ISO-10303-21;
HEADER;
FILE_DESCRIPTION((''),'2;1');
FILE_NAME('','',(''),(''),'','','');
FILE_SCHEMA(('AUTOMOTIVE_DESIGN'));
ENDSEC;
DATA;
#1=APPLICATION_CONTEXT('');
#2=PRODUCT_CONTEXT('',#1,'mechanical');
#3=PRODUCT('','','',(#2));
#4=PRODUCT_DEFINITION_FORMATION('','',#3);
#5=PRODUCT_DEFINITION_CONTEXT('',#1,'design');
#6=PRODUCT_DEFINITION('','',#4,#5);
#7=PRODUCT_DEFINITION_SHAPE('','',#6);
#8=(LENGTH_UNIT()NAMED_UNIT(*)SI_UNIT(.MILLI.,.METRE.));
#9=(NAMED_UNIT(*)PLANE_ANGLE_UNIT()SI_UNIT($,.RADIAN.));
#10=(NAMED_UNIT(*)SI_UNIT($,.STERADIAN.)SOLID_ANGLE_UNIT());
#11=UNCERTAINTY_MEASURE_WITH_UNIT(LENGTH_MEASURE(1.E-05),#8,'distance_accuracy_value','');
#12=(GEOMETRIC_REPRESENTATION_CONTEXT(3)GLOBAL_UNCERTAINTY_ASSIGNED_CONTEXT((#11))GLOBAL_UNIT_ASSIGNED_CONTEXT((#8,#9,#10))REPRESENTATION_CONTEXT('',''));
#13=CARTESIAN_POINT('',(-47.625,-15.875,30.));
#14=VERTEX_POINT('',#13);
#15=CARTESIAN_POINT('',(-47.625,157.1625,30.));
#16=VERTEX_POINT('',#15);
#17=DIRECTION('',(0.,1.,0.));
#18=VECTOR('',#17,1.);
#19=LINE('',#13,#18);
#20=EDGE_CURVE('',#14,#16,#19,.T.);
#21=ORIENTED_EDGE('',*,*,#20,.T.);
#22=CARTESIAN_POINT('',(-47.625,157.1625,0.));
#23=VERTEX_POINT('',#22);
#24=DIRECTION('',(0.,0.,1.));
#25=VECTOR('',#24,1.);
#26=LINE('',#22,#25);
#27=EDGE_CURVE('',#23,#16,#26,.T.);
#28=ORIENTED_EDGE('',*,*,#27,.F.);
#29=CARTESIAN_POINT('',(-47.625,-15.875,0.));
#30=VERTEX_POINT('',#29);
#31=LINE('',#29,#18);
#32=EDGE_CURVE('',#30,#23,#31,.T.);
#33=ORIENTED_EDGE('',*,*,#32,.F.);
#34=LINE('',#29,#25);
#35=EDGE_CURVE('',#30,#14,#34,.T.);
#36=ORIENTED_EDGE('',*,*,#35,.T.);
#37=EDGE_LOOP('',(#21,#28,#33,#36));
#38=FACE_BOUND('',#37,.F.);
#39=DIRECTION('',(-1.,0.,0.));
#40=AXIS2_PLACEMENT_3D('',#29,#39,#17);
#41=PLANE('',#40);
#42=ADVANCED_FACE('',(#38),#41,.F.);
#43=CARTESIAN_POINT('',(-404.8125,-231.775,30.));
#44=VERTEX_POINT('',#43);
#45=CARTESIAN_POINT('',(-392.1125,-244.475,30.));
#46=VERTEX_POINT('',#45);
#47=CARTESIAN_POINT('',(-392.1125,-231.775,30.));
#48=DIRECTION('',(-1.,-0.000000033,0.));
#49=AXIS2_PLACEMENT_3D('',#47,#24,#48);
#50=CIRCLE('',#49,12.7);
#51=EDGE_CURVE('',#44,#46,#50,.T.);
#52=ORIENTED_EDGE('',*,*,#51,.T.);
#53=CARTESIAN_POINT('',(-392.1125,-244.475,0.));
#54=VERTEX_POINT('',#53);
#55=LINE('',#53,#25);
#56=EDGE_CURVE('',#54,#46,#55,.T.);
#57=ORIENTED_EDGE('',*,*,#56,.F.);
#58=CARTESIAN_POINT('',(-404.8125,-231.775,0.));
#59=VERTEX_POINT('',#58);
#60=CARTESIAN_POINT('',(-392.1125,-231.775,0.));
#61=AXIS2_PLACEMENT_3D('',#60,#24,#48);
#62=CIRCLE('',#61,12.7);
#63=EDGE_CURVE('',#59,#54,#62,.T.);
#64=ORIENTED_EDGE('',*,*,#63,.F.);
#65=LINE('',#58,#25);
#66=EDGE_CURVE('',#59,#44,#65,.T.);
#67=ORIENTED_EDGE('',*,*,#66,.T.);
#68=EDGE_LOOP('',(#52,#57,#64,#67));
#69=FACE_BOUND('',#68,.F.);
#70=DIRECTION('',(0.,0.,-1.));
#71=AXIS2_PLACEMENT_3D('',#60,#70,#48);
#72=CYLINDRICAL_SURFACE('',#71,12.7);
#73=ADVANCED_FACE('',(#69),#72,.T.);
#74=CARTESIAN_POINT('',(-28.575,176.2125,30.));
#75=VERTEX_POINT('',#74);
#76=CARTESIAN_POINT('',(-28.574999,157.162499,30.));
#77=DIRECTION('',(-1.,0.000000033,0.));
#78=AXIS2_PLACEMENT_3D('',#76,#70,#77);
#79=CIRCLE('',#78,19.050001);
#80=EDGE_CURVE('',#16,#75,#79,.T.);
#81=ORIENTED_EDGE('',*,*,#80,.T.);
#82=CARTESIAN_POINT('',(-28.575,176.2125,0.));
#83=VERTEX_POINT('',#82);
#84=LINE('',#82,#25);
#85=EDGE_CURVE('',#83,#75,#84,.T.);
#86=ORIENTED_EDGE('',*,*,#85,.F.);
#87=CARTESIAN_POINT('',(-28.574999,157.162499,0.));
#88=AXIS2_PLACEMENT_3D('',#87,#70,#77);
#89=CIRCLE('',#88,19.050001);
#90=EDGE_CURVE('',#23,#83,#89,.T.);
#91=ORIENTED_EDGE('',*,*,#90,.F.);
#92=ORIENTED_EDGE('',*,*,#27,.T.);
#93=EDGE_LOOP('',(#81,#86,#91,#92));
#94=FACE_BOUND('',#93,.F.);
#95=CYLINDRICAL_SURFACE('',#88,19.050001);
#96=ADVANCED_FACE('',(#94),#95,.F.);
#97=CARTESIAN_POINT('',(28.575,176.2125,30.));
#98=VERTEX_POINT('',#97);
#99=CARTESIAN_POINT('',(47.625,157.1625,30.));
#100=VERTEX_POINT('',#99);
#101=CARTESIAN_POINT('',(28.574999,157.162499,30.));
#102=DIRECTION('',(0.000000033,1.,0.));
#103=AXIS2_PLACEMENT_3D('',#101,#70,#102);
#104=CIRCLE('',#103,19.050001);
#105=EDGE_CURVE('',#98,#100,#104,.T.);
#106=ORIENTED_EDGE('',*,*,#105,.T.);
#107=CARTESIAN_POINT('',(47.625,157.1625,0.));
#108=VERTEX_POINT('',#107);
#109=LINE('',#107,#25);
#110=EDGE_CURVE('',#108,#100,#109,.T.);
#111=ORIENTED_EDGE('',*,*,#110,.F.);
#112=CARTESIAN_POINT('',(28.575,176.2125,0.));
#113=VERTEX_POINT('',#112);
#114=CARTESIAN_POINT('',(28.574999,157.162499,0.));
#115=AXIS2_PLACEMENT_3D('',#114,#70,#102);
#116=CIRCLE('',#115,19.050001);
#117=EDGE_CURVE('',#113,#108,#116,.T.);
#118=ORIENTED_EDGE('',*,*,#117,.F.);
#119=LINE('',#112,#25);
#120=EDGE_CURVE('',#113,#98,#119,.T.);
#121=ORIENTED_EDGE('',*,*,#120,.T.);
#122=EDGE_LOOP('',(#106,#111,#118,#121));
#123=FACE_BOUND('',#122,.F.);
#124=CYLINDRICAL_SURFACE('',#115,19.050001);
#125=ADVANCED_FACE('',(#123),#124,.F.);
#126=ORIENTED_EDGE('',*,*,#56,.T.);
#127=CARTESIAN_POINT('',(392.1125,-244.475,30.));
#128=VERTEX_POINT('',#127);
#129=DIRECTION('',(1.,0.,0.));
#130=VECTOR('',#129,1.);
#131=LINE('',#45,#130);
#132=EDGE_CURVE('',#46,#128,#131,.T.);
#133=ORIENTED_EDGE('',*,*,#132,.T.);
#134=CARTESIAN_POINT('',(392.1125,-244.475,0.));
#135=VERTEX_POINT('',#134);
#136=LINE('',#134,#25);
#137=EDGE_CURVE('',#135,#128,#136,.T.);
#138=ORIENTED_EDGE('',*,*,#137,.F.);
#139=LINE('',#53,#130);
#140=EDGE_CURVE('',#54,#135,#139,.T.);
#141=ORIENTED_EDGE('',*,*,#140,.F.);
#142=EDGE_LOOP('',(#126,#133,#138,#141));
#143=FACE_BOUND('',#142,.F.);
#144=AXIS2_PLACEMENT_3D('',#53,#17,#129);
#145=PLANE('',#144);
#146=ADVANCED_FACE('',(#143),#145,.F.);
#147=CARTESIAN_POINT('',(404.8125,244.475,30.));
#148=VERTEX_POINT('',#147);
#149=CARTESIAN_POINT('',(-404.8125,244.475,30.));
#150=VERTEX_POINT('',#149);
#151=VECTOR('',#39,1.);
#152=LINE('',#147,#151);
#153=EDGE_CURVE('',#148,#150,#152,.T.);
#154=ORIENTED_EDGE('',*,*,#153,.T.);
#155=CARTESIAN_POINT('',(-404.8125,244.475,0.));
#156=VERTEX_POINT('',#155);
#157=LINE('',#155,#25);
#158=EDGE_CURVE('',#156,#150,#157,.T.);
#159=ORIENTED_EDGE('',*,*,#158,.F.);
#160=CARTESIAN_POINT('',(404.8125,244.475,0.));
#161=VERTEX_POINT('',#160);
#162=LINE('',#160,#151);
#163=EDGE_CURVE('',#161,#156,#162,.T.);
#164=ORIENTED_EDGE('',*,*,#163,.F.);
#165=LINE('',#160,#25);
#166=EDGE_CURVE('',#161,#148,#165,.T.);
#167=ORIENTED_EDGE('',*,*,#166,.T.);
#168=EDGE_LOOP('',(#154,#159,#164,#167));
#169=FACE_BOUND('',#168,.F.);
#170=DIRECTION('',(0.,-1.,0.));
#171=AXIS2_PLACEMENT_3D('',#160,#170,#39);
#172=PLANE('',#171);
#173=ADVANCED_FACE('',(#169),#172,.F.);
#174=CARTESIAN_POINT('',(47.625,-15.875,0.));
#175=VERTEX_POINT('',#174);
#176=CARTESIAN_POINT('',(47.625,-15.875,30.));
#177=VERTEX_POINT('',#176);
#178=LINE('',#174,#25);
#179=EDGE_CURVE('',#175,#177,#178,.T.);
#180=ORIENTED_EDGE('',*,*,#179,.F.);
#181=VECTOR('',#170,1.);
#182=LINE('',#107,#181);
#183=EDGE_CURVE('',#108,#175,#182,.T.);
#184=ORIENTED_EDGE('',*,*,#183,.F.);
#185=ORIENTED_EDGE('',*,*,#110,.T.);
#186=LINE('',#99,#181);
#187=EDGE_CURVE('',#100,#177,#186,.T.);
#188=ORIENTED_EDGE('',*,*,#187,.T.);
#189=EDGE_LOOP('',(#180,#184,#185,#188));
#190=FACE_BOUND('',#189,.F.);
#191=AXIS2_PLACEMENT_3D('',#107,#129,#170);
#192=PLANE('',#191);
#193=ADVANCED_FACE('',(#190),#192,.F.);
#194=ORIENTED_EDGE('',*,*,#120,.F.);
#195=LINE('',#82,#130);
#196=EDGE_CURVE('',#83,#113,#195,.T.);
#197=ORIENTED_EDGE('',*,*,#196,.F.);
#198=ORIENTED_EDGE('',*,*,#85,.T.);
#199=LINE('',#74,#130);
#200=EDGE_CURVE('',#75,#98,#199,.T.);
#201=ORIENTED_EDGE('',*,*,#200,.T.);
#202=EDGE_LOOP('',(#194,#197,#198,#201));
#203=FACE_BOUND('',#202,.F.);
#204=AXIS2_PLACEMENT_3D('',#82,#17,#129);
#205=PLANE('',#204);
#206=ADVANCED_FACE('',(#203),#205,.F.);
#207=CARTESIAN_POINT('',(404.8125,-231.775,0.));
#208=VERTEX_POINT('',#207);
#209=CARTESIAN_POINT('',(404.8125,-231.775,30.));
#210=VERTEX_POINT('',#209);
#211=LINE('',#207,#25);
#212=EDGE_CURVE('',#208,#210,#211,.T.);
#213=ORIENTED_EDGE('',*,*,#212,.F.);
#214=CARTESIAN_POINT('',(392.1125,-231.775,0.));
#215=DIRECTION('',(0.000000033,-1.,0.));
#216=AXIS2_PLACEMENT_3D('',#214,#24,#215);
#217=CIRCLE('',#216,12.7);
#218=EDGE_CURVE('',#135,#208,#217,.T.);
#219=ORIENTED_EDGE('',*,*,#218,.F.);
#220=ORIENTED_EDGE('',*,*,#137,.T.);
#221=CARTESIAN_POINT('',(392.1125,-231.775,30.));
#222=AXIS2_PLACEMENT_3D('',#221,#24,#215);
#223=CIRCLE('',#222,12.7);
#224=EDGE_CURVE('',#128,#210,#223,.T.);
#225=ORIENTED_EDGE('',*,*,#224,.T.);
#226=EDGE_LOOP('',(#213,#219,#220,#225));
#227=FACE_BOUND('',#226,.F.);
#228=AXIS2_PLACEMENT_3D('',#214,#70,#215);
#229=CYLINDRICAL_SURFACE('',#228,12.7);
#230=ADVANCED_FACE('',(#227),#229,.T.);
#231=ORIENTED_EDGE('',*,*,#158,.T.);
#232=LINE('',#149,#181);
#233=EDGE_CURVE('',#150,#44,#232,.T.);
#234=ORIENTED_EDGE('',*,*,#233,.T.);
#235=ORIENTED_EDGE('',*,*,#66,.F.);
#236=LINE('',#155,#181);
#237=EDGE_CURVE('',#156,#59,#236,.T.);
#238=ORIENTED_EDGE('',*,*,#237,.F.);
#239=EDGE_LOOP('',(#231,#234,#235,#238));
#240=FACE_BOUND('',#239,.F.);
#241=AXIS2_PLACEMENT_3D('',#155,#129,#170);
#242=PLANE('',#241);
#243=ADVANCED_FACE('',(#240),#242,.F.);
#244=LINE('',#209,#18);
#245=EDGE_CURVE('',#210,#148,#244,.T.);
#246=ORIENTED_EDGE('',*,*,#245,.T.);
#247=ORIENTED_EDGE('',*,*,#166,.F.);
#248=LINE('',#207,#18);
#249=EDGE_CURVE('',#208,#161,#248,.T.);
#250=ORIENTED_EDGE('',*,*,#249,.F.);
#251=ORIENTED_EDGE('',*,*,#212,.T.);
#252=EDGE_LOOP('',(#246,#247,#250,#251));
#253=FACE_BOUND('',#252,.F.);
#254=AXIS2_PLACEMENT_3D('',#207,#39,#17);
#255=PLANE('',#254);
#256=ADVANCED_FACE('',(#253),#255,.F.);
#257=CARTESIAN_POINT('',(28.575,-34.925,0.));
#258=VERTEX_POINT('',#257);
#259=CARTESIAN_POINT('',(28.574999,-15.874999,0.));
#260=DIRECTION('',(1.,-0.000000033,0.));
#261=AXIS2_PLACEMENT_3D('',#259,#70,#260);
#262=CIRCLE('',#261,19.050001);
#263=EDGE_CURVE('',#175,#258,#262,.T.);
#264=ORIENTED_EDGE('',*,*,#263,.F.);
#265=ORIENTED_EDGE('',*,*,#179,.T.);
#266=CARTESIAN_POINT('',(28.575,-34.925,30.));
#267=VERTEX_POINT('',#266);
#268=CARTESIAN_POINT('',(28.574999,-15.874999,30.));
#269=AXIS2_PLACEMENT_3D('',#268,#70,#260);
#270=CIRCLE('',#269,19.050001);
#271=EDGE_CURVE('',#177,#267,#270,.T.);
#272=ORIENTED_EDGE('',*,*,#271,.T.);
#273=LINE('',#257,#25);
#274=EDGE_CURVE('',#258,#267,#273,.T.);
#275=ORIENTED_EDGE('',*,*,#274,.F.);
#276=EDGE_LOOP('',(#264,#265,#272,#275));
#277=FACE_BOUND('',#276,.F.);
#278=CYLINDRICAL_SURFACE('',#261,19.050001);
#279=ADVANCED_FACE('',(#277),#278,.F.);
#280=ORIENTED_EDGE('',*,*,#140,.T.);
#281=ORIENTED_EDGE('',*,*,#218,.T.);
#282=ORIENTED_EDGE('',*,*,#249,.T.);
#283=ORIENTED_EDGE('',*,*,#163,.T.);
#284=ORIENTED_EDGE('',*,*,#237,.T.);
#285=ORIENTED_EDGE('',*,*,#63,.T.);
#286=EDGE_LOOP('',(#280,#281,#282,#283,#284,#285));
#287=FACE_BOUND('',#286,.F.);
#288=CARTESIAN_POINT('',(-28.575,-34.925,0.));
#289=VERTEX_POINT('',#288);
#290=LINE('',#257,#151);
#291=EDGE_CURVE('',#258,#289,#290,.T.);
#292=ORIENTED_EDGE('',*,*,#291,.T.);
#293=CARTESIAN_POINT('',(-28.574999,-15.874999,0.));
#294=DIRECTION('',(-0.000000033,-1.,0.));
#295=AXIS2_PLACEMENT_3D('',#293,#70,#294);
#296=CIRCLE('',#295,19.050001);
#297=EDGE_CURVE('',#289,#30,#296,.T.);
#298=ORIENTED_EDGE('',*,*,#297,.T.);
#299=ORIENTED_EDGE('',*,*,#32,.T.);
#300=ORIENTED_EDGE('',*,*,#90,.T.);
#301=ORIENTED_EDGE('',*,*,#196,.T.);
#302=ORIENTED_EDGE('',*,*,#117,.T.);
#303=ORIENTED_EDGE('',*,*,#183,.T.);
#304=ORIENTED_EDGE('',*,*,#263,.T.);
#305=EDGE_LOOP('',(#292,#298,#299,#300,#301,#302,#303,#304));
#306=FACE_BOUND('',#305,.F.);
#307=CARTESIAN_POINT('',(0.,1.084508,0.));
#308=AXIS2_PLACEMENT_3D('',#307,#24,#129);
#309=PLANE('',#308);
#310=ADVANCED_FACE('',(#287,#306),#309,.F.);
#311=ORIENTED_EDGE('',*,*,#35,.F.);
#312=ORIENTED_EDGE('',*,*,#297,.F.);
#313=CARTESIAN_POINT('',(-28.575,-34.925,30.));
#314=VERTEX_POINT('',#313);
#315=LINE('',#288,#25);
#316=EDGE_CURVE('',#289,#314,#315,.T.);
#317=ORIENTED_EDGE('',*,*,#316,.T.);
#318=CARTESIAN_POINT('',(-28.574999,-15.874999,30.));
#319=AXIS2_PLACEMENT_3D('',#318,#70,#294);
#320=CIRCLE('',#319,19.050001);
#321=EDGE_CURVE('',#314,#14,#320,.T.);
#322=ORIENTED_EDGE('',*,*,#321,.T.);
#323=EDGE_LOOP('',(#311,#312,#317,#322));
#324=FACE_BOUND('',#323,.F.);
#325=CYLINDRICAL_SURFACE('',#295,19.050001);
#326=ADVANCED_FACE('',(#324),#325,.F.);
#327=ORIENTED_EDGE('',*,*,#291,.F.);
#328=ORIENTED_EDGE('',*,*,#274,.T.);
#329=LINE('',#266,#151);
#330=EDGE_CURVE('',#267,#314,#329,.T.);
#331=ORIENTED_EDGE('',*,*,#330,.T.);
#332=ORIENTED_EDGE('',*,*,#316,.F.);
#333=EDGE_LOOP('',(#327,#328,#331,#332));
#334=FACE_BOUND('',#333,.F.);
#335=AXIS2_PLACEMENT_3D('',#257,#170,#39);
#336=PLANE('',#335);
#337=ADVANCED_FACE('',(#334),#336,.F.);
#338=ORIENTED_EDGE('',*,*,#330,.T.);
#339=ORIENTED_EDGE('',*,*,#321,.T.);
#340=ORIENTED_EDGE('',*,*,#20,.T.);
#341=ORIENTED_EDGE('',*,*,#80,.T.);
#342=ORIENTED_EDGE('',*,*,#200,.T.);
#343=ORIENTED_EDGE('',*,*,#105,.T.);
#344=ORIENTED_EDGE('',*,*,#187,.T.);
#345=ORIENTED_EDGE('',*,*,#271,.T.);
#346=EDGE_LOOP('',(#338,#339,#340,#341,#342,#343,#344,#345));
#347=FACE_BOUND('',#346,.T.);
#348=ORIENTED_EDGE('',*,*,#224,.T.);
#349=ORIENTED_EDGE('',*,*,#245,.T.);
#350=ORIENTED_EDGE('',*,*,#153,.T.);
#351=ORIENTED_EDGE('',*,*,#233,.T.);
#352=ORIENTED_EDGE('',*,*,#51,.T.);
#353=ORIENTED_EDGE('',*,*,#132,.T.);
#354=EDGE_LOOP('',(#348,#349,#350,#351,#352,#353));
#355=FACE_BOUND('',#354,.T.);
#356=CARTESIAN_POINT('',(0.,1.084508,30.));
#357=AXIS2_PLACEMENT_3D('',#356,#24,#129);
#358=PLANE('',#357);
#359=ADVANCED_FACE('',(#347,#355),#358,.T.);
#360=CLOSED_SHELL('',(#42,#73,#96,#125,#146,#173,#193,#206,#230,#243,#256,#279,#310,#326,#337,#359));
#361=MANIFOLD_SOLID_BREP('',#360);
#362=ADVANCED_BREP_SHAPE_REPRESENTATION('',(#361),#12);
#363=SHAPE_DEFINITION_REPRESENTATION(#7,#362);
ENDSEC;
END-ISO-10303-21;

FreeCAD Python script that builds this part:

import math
import FreeCAD as App
import Part
import Sketcher

V = App.Vector
Q = App.Units.Quantity

doc = App.newDocument("Part")
body = doc.addObject("PartDesign::Body", "Body")

sketch1 = body.newObject("Sketcher::SketchObject", "Sketch")
sketch1.AttachmentSupport = (doc.getObject("XY_Plane"), [""])
sketch1.MapMode = "FlatFace"
sketch1.addGeometry([
    Part.LineSegment(V(405, 244, 0), V(-405, 244, 0)),
    Part.LineSegment(V(-405, 244, 0), V(-405, -232, 0)),
    Part.ArcOfCircle(Part.Circle(V(-392, -232, 0), V(0, 0, 1), 13), math.radians(-180), math.radians(-90)),
    Part.LineSegment(V(-392, -244, 0), V(392, -244, 0)),
    Part.ArcOfCircle(Part.Circle(V(392, -232, 0), V(0, 0, 1), 13), math.radians(-90), math.radians(0)),
    Part.LineSegment(V(405, -232, 0), V(405, 244, 0)),
    Part.LineSegment(V(-48, -16, 0), V(-48, 157, 0)),
    Part.ArcOfCircle(Part.Circle(V(-29, 157, 0), V(0, 0, 1), 19), math.radians(90), math.radians(180)),
    Part.LineSegment(V(-29, 176, 0), V(29, 176, 0)),
    Part.ArcOfCircle(Part.Circle(V(29, 157, 0), V(0, 0, 1), 19), math.radians(0), math.radians(90)),
    Part.LineSegment(V(48, 157, 0), V(48, -16, 0)),
    Part.ArcOfCircle(Part.Circle(V(29, -16, 0), V(0, 0, 1), 19), math.radians(-90), math.radians(0)),
    Part.LineSegment(V(29, -35, 0), V(-29, -35, 0)),
    Part.ArcOfCircle(Part.Circle(V(-29, -16, 0), V(0, 0, 1), 19), math.radians(-180), math.radians(-90)),
], False)
sketch1.addConstraint([
    Sketcher.Constraint("Coincident", 0, 2, 1, 1),
    Sketcher.Constraint("Tangent", 1, 2, 2, 1),
    Sketcher.Constraint("Tangent", 2, 2, 3, 1),
    Sketcher.Constraint("Tangent", 3, 2, 4, 1),
    Sketcher.Constraint("Tangent", 4, 2, 5, 1),
    Sketcher.Constraint("Coincident", 5, 2, 0, 1),
    Sketcher.Constraint("Tangent", 6, 2, 7, 2),
    Sketcher.Constraint("Tangent", 7, 1, 8, 1),
    Sketcher.Constraint("Tangent", 8, 2, 9, 2),
    Sketcher.Constraint("Tangent", 9, 1, 10, 1),
    Sketcher.Constraint("Tangent", 10, 2, 11, 2),
    Sketcher.Constraint("Tangent", 11, 1, 12, 1),
    Sketcher.Constraint("Tangent", 12, 2, 13, 2),
    Sketcher.Constraint("Tangent", 13, 1, 6, 1),
    Sketcher.Constraint("Horizontal", 0),
    Sketcher.Constraint("Vertical", 1),
    Sketcher.Constraint("Horizontal", 3),
    Sketcher.Constraint("Vertical", 5),
    Sketcher.Constraint("Vertical", 6),
    Sketcher.Constraint("Horizontal", 8),
    Sketcher.Constraint("Vertical", 10),
    Sketcher.Constraint("Horizontal", 12),
    Sketcher.Constraint("Equal", 2, 4),
    Sketcher.Constraint("Equal", 7, 9),
    Sketcher.Constraint("Equal", 9, 11),
    Sketcher.Constraint("Equal", 11, 13),
    Sketcher.Constraint("Radius", 2, Q("0.5 in")),
    Sketcher.Constraint("Radius", 7, Q("0.75 in")),
    Sketcher.Constraint("DistanceY", 2, 2, 13, 3, Q("9 in")),
    Sketcher.Constraint("DistanceX", 6, 2, 9, 3, Q("3 in")),
    Sketcher.Constraint("DistanceY", 1, 2, 1, 1, Q("18.75 in")),
    Sketcher.Constraint("DistanceX", 0, 2, 0, 1, Q("31.875 in")),
    Sketcher.Constraint("DistanceY", 6, 1, 6, 2, Q("6.8125 in")),
    Sketcher.Constraint("DistanceX", 2, 3, -1, 1, Q("15.4375 in")),
    Sketcher.Constraint("DistanceY", 2, 3, -1, 1, Q("9.125 in")),
    Sketcher.Constraint("DistanceX", 7, 3, -1, 1, Q("1.125 in")),
])
pad1 = body.newObject("PartDesign::Pad", "Pad")
pad1.Profile = sketch1
pad1.Length = 30

doc.recompute()
